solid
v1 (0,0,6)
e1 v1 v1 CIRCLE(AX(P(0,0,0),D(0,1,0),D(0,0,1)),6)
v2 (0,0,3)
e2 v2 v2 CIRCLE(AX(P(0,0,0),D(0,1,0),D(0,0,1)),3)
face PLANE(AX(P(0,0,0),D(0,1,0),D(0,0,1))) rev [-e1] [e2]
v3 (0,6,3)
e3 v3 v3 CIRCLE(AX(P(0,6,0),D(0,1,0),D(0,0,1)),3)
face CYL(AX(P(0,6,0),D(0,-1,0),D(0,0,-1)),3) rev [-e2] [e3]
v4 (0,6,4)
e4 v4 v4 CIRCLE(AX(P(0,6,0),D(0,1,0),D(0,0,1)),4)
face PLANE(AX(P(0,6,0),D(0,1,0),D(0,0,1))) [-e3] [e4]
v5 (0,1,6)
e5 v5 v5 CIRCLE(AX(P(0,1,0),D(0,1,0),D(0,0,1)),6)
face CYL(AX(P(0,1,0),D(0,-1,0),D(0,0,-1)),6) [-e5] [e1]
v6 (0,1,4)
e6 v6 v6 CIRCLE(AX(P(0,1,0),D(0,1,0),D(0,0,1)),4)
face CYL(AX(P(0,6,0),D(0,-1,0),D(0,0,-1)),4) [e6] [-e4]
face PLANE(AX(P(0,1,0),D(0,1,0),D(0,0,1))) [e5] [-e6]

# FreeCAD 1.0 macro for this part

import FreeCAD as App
import Part
import Sketcher

V = App.Vector
Q = App.Units.Quantity

doc = App.newDocument("Part")
params = doc.addObject("Spreadsheet::Sheet", "Params")
for row, (alias, value) in enumerate([
    ("sketch1_diameter", "8 mm"),
    ("sketch1_diameter2", "6 mm"),
    ("pad1_length", "6 mm"),
    ("sketch2_diameter", "12 mm"),
    ("sketch2_diameter2", "8 mm"),
    ("pad2_length", "1 mm"),
], start=1):
    params.set(f"A{row}", alias)
    params.set(f"B{row}", "=" + value)
    params.setAlias(f"B{row}", alias)

body = doc.addObject("PartDesign::Body", "Body")

# Sketch on XZ plane
sketch1 = doc.addObject("Sketcher::SketchObject", "Sketch")
body.addObject(sketch1)
sketch1.AttachmentSupport = (doc.XZ_Plane, [""])
sketch1.MapMode = "FlatFace"
sketch1.addGeometry(Part.Circle(V(0, 0, 0), V(0, 0, 1), 4), False)
sketch1.addGeometry(Part.Circle(V(0, 0, 0), V(0, 0, 1), 3), False)
sketch1.addConstraint(Sketcher.Constraint("Coincident", 0, 3, -1, 1))
sketch1.addConstraint(Sketcher.Constraint("Coincident", 1, 3, -1, 1))
sketch1.addConstraint(Sketcher.Constraint("Diameter", 0, Q("8 mm")))
sketch1.addConstraint(Sketcher.Constraint("Diameter", 1, Q("6 mm")))
sketch1.setExpression("Constraints[2]", "Params.sketch1_diameter")
sketch1.setExpression("Constraints[3]", "Params.sketch1_diameter2")
pad1 = doc.addObject("PartDesign::Pad", "Pad")
body.addObject(pad1)
pad1.Profile = sketch1
pad1.setExpression("Length", "Params.pad1_length")
pad1.Reversed = True

# Sketch on XZ plane
sketch2 = doc.addObject("Sketcher::SketchObject", "Sketch001")
body.addObject(sketch2)
sketch2.AttachmentSupport = (doc.XZ_Plane, [""])
sketch2.MapMode = "FlatFace"
sketch2.addGeometry(Part.Circle(V(0, 0, 0), V(0, 0, 1), 6), False)
sketch2.addGeometry(Part.Circle(V(0, 0, 0), V(0, 0, 1), 4), False)
sketch2.addConstraint(Sketcher.Constraint("Coincident", 0, 3, -1, 1))
sketch2.addConstraint(Sketcher.Constraint("Coincident", 1, 3, -1, 1))
sketch2.addConstraint(Sketcher.Constraint("Diameter", 0, Q("12 mm")))
sketch2.addConstraint(Sketcher.Constraint("Diameter", 1, Q("8 mm")))
sketch2.setExpression("Constraints[2]", "Params.sketch2_diameter")
sketch2.setExpression("Constraints[3]", "Params.sketch2_diameter2")
pad2 = doc.addObject("PartDesign::Pad", "Pad001")
body.addObject(pad2)
pad2.Profile = sketch2
pad2.setExpression("Length", "Params.pad2_length")
pad2.Reversed = True

doc.recompute()
